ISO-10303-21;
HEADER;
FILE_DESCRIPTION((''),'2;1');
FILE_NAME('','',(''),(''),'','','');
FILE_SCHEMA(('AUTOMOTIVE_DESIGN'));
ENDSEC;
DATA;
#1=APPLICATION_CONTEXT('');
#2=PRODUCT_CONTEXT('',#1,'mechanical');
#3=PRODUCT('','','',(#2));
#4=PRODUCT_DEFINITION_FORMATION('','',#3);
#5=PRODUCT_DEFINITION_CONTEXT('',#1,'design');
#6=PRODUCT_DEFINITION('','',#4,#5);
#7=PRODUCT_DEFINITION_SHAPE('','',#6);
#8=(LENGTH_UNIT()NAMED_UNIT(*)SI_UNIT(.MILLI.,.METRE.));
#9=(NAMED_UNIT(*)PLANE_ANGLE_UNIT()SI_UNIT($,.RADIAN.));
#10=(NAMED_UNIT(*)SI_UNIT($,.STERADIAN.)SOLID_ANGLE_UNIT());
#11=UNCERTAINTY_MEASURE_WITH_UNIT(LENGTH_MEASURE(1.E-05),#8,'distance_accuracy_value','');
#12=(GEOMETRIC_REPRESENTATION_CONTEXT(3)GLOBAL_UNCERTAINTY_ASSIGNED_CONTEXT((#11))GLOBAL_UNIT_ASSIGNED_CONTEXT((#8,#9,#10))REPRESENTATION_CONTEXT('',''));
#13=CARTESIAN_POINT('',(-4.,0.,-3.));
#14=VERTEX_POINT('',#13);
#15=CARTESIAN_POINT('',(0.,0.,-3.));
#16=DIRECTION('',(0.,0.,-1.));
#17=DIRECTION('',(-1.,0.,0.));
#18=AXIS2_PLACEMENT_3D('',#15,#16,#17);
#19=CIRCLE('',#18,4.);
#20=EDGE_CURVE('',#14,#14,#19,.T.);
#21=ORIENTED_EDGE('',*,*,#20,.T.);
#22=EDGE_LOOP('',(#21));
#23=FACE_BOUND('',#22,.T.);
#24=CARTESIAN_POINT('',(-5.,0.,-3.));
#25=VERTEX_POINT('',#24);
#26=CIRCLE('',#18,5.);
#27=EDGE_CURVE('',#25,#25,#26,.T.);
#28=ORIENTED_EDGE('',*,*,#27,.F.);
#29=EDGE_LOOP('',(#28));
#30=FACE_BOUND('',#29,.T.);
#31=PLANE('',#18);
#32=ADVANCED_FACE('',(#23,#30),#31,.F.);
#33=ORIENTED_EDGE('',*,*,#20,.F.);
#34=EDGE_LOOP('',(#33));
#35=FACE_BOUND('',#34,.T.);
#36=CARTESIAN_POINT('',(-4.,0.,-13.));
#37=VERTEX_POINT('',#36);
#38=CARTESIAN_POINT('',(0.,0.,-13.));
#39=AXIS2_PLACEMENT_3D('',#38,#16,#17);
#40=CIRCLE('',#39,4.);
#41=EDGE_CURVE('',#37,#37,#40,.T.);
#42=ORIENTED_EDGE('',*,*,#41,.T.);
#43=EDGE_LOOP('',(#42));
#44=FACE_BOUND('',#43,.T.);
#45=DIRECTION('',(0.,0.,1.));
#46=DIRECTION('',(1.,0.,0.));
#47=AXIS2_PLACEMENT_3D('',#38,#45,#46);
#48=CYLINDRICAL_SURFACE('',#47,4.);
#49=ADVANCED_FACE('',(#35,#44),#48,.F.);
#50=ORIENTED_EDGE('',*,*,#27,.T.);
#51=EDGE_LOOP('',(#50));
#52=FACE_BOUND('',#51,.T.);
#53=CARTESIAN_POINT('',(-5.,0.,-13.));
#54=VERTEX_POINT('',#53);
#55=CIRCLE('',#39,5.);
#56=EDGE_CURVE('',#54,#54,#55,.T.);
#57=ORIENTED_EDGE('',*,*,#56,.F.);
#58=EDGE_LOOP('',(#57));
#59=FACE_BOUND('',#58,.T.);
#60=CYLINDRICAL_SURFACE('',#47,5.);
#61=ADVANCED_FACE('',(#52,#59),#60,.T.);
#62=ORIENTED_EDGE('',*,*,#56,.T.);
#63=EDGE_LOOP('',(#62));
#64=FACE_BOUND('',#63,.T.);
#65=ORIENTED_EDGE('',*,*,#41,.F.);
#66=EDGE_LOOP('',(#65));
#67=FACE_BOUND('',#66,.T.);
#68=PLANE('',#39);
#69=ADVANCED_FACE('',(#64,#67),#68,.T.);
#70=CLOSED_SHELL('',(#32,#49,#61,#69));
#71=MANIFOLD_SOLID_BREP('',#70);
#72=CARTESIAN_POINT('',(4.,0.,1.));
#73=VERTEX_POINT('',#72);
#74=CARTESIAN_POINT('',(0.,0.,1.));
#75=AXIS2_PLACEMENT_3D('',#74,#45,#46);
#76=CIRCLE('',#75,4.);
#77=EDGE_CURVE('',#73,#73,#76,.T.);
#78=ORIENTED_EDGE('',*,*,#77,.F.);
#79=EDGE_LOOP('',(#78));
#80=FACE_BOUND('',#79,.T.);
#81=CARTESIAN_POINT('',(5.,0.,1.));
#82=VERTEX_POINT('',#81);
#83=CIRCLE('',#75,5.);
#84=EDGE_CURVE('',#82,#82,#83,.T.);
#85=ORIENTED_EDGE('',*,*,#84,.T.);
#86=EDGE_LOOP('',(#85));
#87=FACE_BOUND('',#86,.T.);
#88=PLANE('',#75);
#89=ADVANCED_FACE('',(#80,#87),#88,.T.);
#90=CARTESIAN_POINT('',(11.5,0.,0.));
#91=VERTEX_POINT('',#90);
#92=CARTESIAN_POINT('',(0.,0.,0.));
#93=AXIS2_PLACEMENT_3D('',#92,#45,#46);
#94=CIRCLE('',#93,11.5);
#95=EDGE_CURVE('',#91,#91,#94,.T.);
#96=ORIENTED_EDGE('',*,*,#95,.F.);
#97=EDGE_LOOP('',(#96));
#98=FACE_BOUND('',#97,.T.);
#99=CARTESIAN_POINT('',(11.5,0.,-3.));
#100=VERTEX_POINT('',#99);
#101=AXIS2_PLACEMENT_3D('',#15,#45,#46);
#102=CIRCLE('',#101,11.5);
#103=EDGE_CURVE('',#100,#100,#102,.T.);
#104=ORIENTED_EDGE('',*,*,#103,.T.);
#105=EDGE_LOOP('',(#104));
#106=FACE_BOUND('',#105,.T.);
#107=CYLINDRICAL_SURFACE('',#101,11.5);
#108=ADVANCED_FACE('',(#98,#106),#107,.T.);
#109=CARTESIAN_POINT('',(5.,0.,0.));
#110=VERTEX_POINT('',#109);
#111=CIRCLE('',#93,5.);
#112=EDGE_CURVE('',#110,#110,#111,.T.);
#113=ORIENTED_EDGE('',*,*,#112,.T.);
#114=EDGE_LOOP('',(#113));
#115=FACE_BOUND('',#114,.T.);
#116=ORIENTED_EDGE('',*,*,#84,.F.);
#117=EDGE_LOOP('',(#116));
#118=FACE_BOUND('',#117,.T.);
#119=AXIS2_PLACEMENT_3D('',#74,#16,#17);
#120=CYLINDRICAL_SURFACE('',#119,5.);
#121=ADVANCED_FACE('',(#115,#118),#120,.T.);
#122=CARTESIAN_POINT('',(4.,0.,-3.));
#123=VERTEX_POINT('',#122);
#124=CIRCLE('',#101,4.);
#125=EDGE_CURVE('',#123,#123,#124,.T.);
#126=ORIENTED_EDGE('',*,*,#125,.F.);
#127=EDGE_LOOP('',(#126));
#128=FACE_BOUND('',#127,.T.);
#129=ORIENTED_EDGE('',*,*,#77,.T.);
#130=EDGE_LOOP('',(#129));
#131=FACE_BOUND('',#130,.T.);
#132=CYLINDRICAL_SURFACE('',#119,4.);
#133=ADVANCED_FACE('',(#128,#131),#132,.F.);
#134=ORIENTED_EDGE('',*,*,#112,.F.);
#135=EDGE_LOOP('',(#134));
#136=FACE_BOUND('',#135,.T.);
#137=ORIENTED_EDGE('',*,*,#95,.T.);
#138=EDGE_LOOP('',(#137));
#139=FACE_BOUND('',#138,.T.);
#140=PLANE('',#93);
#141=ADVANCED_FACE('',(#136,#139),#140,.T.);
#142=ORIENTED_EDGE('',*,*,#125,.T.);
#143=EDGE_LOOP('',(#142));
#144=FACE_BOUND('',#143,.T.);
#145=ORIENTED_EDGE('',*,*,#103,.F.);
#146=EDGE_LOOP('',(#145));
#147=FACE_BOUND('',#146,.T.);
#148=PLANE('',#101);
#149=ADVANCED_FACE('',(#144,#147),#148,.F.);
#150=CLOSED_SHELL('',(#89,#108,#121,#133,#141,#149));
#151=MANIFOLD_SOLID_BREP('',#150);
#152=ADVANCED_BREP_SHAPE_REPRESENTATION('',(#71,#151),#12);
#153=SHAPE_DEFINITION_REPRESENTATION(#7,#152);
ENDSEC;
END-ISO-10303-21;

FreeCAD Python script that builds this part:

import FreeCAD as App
import Part
import Sketcher
Q = App.Units.Quantity

doc = App.newDocument("Part")
body = doc.addObject("PartDesign::Body", "Body")

# Sketch on XY plane
sketch1 = body.newObject("Sketcher::SketchObject", "Sketch")
sketch1.AttachmentSupport = (doc.getObject("XY_Plane"), [""])
sketch1.MapMode = "FlatFace"
sketch1.addGeometry([
    Part.Circle(App.Vector(0, 0, 0), App.Vector(0, 0, 1), 5),
    Part.Circle(App.Vector(0, 0, 0), App.Vector(0, 0, 1), 4),
], False)
sketch1.addConstraint([
    Sketcher.Constraint("Coincident", 0, 3, -1, 1),
    Sketcher.Constraint("Coincident", 1, 3, -1, 1),
    Sketcher.Constraint("Diameter", 0, Q("10 mm")),
    Sketcher.Constraint("Diameter", 1, Q("8 mm")),
])
pad1 = body.newObject("PartDesign::Pad", "Pad")
pad1.Profile = sketch1
pad1.Length = 1

# Sketch on XY plane
sketch2 = body.newObject("Sketcher::SketchObject", "Sketch001")
sketch2.AttachmentSupport = (doc.getObject("XY_Plane"), [""])
sketch2.MapMode = "FlatFace"
sketch2.AttachmentOffset = App.Placement(App.Vector(0, 0, -3), App.Rotation())
sketch2.addGeometry([
    Part.Circle(App.Vector(0, 0, 0), App.Vector(0, 0, 1), 11.5),
    Part.Circle(App.Vector(0, 0, 0), App.Vector(0, 0, 1), 4),
], False)
sketch2.addConstraint([
    Sketcher.Constraint("Coincident", 0, 3, -1, 1),
    Sketcher.Constraint("Coincident", 1, 3, -1, 1),
    Sketcher.Constraint("Diameter", 0, Q("23 mm")),
    Sketcher.Constraint("Diameter", 1, Q("8 mm")),
])
pad2 = body.newObject("PartDesign::Pad", "Pad001")
pad2.Profile = sketch2
pad2.Length = 3
body2 = doc.addObject("PartDesign::Body", "Body001")

# Sketch on XY plane
sketch3 = body2.newObject("Sketcher::SketchObject", "Sketch002")
sketch3.AttachmentSupport = (doc.getObject("XY_Plane001"), [""])
sketch3.MapMode = "FlatFace"
sketch3.AttachmentOffset = App.Placement(App.Vector(0, 0, -3), App.Rotation())
sketch3.addGeometry([
    Part.Circle(App.Vector(0, 0, 0), App.Vector(0, 0, 1), 5),
    Part.Circle(App.Vector(0, 0, 0), App.Vector(0, 0, 1), 4),
], False)
sketch3.addConstraint([
    Sketcher.Constraint("Coincident", 0, 3, -1, 1),
    Sketcher.Constraint("Coincident", 1, 3, -1, 1),
    Sketcher.Constraint("Diameter", 0, Q("10 mm")),
    Sketcher.Constraint("Diameter", 1, Q("8 mm")),
])
pad3 = body2.newObject("PartDesign::Pad", "Pad002")
pad3.Profile = sketch3
pad3.Length = 10
pad3.Reversed = True

doc.recompute()
